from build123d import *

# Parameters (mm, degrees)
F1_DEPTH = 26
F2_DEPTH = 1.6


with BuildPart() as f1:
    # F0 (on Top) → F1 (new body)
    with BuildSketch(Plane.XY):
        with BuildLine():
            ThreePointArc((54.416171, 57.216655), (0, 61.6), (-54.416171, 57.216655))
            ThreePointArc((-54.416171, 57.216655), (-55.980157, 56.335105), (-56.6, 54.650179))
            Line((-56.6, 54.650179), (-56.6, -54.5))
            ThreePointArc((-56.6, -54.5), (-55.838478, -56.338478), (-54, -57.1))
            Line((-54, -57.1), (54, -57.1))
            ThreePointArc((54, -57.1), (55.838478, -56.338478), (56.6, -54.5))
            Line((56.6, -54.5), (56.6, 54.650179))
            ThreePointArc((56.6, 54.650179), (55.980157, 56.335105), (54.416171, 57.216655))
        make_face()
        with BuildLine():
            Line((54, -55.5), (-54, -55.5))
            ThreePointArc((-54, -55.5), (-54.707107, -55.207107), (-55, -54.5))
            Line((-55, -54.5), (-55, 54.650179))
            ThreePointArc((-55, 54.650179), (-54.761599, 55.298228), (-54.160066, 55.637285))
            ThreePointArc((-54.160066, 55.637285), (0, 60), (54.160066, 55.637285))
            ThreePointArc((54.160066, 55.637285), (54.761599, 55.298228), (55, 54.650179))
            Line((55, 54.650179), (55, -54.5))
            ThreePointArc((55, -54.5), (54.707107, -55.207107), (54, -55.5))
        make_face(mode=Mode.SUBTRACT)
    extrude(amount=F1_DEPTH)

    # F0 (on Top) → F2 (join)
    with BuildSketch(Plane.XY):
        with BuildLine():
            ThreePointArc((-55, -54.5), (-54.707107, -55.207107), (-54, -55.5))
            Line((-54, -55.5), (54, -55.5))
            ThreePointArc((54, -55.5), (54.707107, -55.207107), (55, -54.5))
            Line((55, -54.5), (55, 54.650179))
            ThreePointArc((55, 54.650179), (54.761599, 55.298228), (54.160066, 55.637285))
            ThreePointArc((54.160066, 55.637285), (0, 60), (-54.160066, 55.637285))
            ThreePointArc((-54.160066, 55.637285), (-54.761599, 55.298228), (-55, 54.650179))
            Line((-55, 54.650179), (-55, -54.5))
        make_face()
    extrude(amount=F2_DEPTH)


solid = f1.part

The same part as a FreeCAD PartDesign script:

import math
import FreeCAD as App
import Part
import Sketcher

V = App.Vector
Q = App.Units.Quantity

doc = App.newDocument("Part")
body = doc.addObject("PartDesign::Body", "Body")

sketch1 = body.newObject("Sketcher::SketchObject", "Sketch")
sketch1.AttachmentSupport = (doc.getObject("XY_Plane"), [""])
sketch1.MapMode = "FlatFace"
sketch1.addGeometry(Part.ArcOfCircle(Part.Circle(V(0, -278.4, 0), V(0, 0, 1), 340), math.radians(80.79), math.radians(99.21)), False)
sketch1.addGeometry(Part.ArcOfCircle(Part.Circle(V(-54, 54.7, 0), V(0, 0, 1), 2.6), math.radians(99), math.radians(180)), False)
sketch1.addGeometry(Part.LineSegment(V(-56.6, 54.7, 0), V(-56.6, -54.5, 0)), False)
sketch1.addGeometry(Part.ArcOfCircle(Part.Circle(V(-54, -54.5, 0), V(0, 0, 1), 2.6), math.radians(180), math.radians(270)), False)
sketch1.addGeometry(Part.LineSegment(V(-54, -57.1, 0), V(54, -57.1, 0)), False)
sketch1.addGeometry(Part.ArcOfCircle(Part.Circle(V(54, -54.5, 0), V(0, 0, 1), 2.6), math.radians(-90), math.radians(0)), False)
sketch1.addGeometry(Part.LineSegment(V(56.6, -54.5, 0), V(56.6, 54.7, 0)), False)
sketch1.addGeometry(Part.ArcOfCircle(Part.Circle(V(54, 54.7, 0), V(0, 0, 1), 2.6), math.radians(0), math.radians(81)), False)
sketch1.addGeometry(Part.ArcOfCircle(Part.Circle(V(54, -54.5, 0), V(0, 0, 1), 1), math.radians(-90), math.radians(0)), False)
sketch1.addGeometry(Part.LineSegment(V(54, -55.5, 0), V(-54, -55.5, 0)), False)
sketch1.addGeometry(Part.ArcOfCircle(Part.Circle(V(-54, -54.5, 0), V(0, 0, 1), 1), math.radians(180), math.radians(270)), False)
sketch1.addGeometry(Part.LineSegment(V(-55, -54.5, 0), V(-55, 54.7, 0)), False)
sketch1.addGeometry(Part.ArcOfCircle(Part.Circle(V(-54, 54.7, 0), V(0, 0, 1), 1), math.radians(99), math.radians(180)), False)
sketch1.addGeometry(Part.ArcOfCircle(Part.Circle(V(0, -278.4, 0), V(0, 0, 1), 338.4), math.radians(80.79), math.radians(99.21)), False)
sketch1.addGeometry(Part.ArcOfCircle(Part.Circle(V(54, 54.7, 0), V(0, 0, 1), 1), math.radians(0), math.radians(81)), False)
sketch1.addGeometry(Part.LineSegment(V(55, 54.7, 0), V(55, -54.5, 0)), False)
sketch1.addConstraint(Sketcher.Constraint("Tangent", 0, 2, 1, 1))
sketch1.addConstraint(Sketcher.Constraint("Tangent", 1, 2, 2, 1))
sketch1.addConstraint(Sketcher.Constraint("Tangent", 2, 2, 3, 1))
sketch1.addConstraint(Sketcher.Constraint("Tangent", 3, 2, 4, 1))
sketch1.addConstraint(Sketcher.Constraint("Tangent", 4, 2, 5, 1))
sketch1.addConstraint(Sketcher.Constraint("Tangent", 5, 2, 6, 1))
sketch1.addConstraint(Sketcher.Constraint("Tangent", 6, 2, 7, 1))
sketch1.addConstraint(Sketcher.Constraint("Tangent", 7, 2, 0, 1))
sketch1.addConstraint(Sketcher.Constraint("Tangent", 8, 1, 9, 1))
sketch1.addConstraint(Sketcher.Constraint("Tangent", 9, 2, 10, 2))
sketch1.addConstraint(Sketcher.Constraint("Tangent", 10, 1, 11, 1))
sketch1.addConstraint(Sketcher.Constraint("Tangent", 11, 2, 12, 2))
sketch1.addConstraint(Sketcher.Constraint("Tangent", 12, 1, 13, 2))
sketch1.addConstraint(Sketcher.Constraint("Tangent", 13, 1, 14, 2))
sketch1.addConstraint(Sketcher.Constraint("Tangent", 14, 1, 15, 1))
sketch1.addConstraint(Sketcher.Constraint("Tangent", 15, 2, 8, 2))
sketch1.addConstraint(Sketcher.Constraint("Vertical", 2))
sketch1.addConstraint(Sketcher.Constraint("Horizontal", 4))
sketch1.addConstraint(Sketcher.Constraint("Vertical", 6))
sketch1.addConstraint(Sketcher.Constraint("Horizontal", 9))
sketch1.addConstraint(Sketcher.Constraint("Vertical", 11))
sketch1.addConstraint(Sketcher.Constraint("Vertical", 15))
sketch1.addConstraint(Sketcher.Constraint("Coincident", 8, 3, 5, 3))
sketch1.addConstraint(Sketcher.Constraint("Coincident", 10, 3, 3, 3))
sketch1.addConstraint(Sketcher.Constraint("Coincident", 12, 3, 1, 3))
sketch1.addConstraint(Sketcher.Constraint("Coincident", 14, 3, 7, 3))
sketch1.addConstraint(Sketcher.Constraint("Equal", 1, 3))
sketch1.addConstraint(Sketcher.Constraint("Equal", 3, 5))
sketch1.addConstraint(Sketcher.Constraint("Equal", 5, 7))
sketch1.addConstraint(Sketcher.Constraint("Symmetric", 1, 3, 7, 3, -2))
sketch1.addConstraint(Sketcher.Constraint("Radius", 8, Q("0.999999 mm")))
sketch1.addConstraint(Sketcher.Constraint("Radius", 1, Q("2.600001 mm")))
sketch1.addConstraint(Sketcher.Constraint("DistanceX", 4, 1, 4, 2, Q("108 mm")))
sketch1.addConstraint(Sketcher.Constraint("DistanceY", 3, 3, -1, 1, Q("54.500001 mm")))
sketch1.addConstraint(Sketcher.Constraint("Radius", 0, Q("339.961078 mm")))
sketch1.addConstraint(Sketcher.Constraint("Radius", 13, Q("338.361093 mm")))
sketch1.addConstraint(Sketcher.Constraint("DistanceY", 2, 2, 2, 1, Q("109.150179 mm")))
pad1 = body.newObject("PartDesign::Pad", "Pad")
pad1.Profile = sketch1
pad1.Length = 26

sketch2 = body.newObject("Sketcher::SketchObject", "Sketch001")
sketch2.AttachmentSupport = (doc.getObject("XY_Plane"), [""])
sketch2.MapMode = "FlatFace"
sketch2.addGeometry(Part.ArcOfCircle(Part.Circle(V(-54, -54.5, 0), V(0, 0, 1), 1), math.radians(180), math.radians(270)), False)
sketch2.addGeometry(Part.LineSegment(V(-54, -55.5, 0), V(54, -55.5, 0)), False)
sketch2.addGeometry(Part.ArcOfCircle(Part.Circle(V(54, -54.5, 0), V(0, 0, 1), 1), math.radians(-90), math.radians(0)), False)
sketch2.addGeometry(Part.LineSegment(V(55, -54.5, 0), V(55, 54.7, 0)), False)
sketch2.addGeometry(Part.ArcOfCircle(Part.Circle(V(54, 54.7, 0), V(0, 0, 1), 1), math.radians(0), math.radians(81)), False)
sketch2.addGeometry(Part.ArcOfCircle(Part.Circle(V(0, -278.4, 0), V(0, 0, 1), 338.4), math.radians(80.79), math.radians(99.21)), False)
sketch2.addGeometry(Part.ArcOfCircle(Part.Circle(V(-54, 54.7, 0), V(0, 0, 1), 1), math.radians(99), math.radians(180)), False)
sketch2.addGeometry(Part.LineSegment(V(-55, 54.7, 0), V(-55, -54.5, 0)), False)
sketch2.addConstraint(Sketcher.Constraint("Tangent", 0, 2, 1, 1))
sketch2.addConstraint(Sketcher.Constraint("Tangent", 1, 2, 2, 1))
sketch2.addConstraint(Sketcher.Constraint("Tangent", 2, 2, 3, 1))
sketch2.addConstraint(Sketcher.Constraint("Tangent", 3, 2, 4, 1))
sketch2.addConstraint(Sketcher.Constraint("Tangent", 4, 2, 5, 1))
sketch2.addConstraint(Sketcher.Constraint("Tangent", 5, 2, 6, 1))
sketch2.addConstraint(Sketcher.Constraint("Tangent", 6, 2, 7, 1))
sketch2.addConstraint(Sketcher.Constraint("Tangent", 7, 2, 0, 1))
sketch2.addConstraint(Sketcher.Constraint("Horizontal", 1))
sketch2.addConstraint(Sketcher.Constraint("Vertical", 3))
sketch2.addConstraint(Sketcher.Constraint("Vertical", 7))
sketch2.addConstraint(Sketcher.Constraint("Equal", 0, 2))
sketch2.addConstraint(Sketcher.Constraint("Equal", 2, 4))
sketch2.addConstraint(Sketcher.Constraint("Equal", 4, 6))
sketch2.addConstraint(Sketcher.Constraint("Symmetric", 4, 3, 6, 3, -2))
sketch2.addConstraint(Sketcher.Constraint("Radius", 0, Q("0.999999 mm")))
sketch2.addConstraint(Sketcher.Constraint("DistanceX", 1, 1, 1, 2, Q("108 mm")))
sketch2.addConstraint(Sketcher.Constraint("DistanceY", 0, 3, -1, 1, Q("54.500001 mm")))
sketch2.addConstraint(Sketcher.Constraint("Radius", 5, Q("338.361093 mm")))
sketch2.addConstraint(Sketcher.Constraint("DistanceY", 3, 1, 3, 2, Q("109.150179 mm")))
pad2 = body.newObject("PartDesign::Pad", "Pad001")
pad2.Profile = sketch2
pad2.Length = 1.6

doc.recompute()
